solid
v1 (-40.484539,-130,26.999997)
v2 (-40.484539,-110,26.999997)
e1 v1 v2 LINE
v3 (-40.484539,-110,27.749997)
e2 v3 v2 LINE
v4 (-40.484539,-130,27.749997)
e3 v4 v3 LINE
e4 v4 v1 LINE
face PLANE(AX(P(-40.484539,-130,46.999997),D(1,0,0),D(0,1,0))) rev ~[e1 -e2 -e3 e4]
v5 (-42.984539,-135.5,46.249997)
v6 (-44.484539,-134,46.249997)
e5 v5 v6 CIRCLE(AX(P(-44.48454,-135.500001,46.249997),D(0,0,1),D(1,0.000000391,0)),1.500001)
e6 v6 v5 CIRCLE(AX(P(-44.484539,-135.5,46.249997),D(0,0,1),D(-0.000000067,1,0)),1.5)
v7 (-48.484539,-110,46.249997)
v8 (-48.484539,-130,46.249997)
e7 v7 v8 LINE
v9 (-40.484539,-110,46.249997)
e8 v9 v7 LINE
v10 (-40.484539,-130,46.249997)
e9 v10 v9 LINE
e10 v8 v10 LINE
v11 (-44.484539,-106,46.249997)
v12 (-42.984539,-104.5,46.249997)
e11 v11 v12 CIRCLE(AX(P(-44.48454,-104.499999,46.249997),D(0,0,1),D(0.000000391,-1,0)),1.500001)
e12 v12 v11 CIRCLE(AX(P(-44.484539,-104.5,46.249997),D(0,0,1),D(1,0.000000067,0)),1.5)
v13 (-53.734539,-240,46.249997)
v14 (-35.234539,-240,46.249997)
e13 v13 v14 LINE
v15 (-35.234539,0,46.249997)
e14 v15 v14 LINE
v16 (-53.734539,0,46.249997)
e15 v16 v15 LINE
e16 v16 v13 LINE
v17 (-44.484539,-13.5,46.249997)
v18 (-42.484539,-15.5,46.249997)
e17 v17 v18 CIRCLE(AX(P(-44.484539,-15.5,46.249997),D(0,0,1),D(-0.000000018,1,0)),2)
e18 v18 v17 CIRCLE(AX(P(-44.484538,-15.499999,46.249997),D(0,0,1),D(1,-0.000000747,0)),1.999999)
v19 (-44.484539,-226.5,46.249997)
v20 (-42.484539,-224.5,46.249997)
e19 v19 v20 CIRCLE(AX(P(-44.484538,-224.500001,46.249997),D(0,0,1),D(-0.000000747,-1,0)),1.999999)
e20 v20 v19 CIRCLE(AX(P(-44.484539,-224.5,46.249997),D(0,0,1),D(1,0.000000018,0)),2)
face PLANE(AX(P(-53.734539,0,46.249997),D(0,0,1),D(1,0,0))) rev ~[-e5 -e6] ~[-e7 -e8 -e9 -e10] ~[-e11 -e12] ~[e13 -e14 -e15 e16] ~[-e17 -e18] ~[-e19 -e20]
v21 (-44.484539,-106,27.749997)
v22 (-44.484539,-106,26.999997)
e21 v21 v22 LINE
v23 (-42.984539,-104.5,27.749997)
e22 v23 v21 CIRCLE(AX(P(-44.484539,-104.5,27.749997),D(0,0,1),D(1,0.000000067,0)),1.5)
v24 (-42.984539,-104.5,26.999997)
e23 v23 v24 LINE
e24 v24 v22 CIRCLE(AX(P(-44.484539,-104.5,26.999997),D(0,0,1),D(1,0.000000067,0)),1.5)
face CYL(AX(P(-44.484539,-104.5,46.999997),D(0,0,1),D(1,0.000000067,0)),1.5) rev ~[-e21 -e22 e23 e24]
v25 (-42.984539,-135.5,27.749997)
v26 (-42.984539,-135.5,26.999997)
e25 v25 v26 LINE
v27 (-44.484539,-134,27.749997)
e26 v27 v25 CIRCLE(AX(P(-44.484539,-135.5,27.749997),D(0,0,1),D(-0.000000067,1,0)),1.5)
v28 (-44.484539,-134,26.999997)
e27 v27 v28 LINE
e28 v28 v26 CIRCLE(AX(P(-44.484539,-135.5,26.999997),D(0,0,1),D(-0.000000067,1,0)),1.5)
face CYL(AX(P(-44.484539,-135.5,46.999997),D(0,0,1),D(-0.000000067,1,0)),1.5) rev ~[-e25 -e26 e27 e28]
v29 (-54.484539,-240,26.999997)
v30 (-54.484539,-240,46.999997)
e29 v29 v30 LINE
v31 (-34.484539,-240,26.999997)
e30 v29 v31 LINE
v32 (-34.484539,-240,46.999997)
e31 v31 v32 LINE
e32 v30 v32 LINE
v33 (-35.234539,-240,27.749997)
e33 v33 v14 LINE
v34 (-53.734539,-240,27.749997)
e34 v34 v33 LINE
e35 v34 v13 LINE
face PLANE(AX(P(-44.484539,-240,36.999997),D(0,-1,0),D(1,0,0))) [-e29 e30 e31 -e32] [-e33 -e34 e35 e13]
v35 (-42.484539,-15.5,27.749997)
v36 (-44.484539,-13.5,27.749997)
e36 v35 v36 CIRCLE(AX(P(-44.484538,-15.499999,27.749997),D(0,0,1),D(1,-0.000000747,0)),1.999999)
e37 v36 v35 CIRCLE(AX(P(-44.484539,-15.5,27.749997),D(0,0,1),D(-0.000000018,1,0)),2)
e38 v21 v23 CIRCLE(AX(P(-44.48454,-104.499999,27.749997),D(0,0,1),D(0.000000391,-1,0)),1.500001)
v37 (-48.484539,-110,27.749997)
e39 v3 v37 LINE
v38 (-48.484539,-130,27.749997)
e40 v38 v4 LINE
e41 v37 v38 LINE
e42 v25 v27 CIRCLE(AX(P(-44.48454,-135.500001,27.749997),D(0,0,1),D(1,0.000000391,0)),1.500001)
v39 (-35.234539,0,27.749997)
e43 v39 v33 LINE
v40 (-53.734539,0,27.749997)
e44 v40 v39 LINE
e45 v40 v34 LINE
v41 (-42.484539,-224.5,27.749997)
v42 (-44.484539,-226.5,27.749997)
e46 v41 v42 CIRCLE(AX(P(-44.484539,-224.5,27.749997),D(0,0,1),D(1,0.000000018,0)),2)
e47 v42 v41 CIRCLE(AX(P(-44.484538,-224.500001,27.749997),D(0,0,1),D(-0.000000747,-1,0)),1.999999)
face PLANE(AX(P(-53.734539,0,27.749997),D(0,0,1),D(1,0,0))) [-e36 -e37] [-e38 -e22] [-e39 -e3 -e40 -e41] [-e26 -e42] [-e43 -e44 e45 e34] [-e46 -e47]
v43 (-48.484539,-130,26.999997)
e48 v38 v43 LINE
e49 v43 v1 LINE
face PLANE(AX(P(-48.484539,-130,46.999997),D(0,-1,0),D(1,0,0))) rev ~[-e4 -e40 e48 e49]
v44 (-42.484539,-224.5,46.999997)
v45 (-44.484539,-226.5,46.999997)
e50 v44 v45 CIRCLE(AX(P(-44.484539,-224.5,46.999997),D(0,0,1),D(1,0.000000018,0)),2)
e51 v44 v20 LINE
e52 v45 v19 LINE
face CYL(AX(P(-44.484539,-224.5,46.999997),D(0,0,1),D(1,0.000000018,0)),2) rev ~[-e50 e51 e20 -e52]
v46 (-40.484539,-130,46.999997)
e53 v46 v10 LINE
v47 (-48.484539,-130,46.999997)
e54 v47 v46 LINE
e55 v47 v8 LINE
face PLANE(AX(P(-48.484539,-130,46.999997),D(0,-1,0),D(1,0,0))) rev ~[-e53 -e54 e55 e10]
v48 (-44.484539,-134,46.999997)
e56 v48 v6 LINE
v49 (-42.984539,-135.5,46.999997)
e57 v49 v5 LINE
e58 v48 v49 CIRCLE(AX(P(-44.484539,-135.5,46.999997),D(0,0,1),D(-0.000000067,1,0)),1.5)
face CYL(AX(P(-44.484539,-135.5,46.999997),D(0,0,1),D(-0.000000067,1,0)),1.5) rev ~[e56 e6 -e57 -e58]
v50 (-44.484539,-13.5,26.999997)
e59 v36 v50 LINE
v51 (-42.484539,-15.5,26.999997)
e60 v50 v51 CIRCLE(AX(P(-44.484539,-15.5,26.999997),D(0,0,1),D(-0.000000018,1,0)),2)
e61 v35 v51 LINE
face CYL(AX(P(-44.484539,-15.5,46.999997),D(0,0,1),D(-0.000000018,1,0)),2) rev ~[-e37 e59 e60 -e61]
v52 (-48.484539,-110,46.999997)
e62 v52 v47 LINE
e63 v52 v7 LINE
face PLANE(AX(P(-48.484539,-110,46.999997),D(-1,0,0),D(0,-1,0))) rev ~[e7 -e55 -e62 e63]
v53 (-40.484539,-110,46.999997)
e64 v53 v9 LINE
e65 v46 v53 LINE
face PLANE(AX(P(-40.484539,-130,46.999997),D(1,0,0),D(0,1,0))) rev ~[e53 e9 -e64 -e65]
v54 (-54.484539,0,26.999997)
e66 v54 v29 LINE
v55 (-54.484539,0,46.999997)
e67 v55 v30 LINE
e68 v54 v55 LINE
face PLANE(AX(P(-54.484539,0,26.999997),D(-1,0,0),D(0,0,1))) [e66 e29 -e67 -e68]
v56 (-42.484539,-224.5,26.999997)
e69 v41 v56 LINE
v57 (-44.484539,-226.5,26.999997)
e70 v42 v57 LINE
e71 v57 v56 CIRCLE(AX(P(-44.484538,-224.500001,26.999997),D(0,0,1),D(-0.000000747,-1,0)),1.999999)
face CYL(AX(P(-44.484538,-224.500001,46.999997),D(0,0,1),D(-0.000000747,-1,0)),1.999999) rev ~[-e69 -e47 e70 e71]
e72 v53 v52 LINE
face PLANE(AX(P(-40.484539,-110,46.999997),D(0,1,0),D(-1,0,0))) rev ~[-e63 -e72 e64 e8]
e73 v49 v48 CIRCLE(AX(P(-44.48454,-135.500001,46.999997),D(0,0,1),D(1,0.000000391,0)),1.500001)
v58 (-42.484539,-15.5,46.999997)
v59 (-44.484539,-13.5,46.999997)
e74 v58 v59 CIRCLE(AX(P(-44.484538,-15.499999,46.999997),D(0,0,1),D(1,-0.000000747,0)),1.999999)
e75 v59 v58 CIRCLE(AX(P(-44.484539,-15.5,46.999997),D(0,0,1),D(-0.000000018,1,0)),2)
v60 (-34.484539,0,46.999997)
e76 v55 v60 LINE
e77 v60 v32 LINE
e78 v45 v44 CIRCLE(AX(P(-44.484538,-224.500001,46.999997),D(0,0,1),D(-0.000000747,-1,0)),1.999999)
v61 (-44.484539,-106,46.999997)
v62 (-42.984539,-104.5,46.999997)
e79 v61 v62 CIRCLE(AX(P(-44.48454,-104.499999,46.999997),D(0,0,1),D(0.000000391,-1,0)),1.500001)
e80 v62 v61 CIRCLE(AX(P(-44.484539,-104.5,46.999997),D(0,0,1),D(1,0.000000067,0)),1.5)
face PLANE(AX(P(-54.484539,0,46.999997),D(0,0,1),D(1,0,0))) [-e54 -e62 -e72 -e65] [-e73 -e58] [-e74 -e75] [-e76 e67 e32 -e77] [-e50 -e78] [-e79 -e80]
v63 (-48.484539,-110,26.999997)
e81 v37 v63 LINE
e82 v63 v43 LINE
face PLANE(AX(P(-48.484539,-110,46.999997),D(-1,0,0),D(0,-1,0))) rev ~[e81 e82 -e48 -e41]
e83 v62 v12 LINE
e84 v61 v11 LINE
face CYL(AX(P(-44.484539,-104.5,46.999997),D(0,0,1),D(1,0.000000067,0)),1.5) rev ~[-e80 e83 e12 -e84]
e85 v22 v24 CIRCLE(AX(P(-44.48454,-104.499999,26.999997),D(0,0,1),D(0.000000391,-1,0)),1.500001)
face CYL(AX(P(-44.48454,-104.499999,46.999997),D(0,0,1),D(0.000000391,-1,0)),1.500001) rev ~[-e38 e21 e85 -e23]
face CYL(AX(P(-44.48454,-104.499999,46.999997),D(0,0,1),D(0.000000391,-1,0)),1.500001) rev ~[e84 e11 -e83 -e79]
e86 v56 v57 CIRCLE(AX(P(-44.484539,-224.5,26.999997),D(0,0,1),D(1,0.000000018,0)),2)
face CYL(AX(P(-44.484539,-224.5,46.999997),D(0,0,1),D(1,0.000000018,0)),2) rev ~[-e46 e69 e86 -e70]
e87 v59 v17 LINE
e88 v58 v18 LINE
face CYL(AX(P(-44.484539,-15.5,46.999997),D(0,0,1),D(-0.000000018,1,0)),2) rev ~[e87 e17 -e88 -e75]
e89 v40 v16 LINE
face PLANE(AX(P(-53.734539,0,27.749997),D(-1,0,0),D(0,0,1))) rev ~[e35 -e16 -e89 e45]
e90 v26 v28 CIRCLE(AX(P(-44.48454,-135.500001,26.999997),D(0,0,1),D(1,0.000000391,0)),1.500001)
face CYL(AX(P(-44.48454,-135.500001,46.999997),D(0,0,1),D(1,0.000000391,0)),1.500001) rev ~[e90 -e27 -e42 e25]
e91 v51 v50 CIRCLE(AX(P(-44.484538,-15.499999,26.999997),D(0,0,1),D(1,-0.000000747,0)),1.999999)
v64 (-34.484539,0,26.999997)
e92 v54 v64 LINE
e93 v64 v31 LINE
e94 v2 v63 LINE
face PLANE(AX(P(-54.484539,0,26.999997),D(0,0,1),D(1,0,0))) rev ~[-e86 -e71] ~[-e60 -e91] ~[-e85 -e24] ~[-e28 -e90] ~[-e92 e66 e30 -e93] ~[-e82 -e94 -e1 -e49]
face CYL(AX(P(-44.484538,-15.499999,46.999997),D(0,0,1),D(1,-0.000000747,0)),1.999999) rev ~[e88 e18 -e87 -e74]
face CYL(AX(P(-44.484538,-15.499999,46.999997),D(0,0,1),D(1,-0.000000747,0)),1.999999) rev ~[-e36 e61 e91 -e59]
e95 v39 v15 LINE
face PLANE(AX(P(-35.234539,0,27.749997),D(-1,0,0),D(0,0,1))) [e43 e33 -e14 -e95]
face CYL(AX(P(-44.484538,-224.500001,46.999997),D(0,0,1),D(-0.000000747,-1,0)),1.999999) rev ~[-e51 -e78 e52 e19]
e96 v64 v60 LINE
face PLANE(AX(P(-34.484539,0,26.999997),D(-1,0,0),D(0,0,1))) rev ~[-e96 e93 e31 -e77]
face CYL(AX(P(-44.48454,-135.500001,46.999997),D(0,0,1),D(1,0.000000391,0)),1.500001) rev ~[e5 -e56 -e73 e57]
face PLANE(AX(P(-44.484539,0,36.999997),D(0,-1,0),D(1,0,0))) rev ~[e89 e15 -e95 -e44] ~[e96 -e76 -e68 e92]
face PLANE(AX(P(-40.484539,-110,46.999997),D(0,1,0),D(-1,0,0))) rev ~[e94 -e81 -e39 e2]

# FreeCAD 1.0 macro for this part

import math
import FreeCAD as App
import Part
import Sketcher


def add_polygon(sketch, points):
    """Adds a closed chain of lines whose ends are joined by coincident constraints."""
    first, n = sketch.GeometryCount, len(points)
    for a, b in zip(points, points[1:] + points[:1]):
        sketch.addGeometry(Part.LineSegment(App.Vector(*a, 0), App.Vector(*b, 0)), False)
    for i in range(n):
        sketch.addConstraint(Sketcher.Constraint("Coincident", first + i, 2, first + (i + 1) % n, 1))

doc = App.newDocument("Part")
params = doc.addObject("Spreadsheet::Sheet", "Params")
for row, (alias, value) in enumerate([
    ("sketch1_width", "20 mm"),
    ("sketch1_width2", "18.5 mm"),
    ("pad1_length", "240 mm"),
    ("sketch2_radius", "1.5 mm"),
    ("sketch2_width", "8 mm"),
    ("sketch2_height", "20 mm"),
    ("pocket1_length", "25 mm"),
    ("sketch3_radius", "1.999999 mm"),
    ("pocket2_length", "25 mm"),
], start=1):
    params.set(f"A{row}", alias)
    params.set(f"B{row}", "=" + value)
    params.setAlias(f"B{row}", alias)

body = doc.addObject("PartDesign::Body", "Body")

sketch1 = body.newObject("Sketcher::SketchObject", "Sketch")
sketch1.AttachmentSupport = (doc.getObject("XZ_Plane"), [""])
sketch1.MapMode = "FlatFace"
add_polygon(sketch1, [(-54.484539, 46.999997), (-54.484539, 26.999997), (-34.484539, 26.999997), (-34.484539, 46.999997)])
add_polygon(sketch1, [(-35.234539, 27.749997), (-53.734539, 27.749997), (-53.734539, 46.249997), (-35.234539, 46.249997)])
sketch1.addConstraint(Sketcher.Constraint("Vertical", 0))
sketch1.addConstraint(Sketcher.Constraint("Horizontal", 1))
sketch1.addConstraint(Sketcher.Constraint("Vertical", 2))
sketch1.addConstraint(Sketcher.Constraint("Horizontal", 3))
sketch1.addConstraint(Sketcher.Constraint("Horizontal", 4))
sketch1.addConstraint(Sketcher.Constraint("Vertical", 5))
sketch1.addConstraint(Sketcher.Constraint("Horizontal", 6))
sketch1.addConstraint(Sketcher.Constraint("Vertical", 7))
sketch1.addConstraint(Sketcher.Constraint("Equal", 3, 0))
sketch1.addConstraint(Sketcher.Constraint("Equal", 6, 5))
sketch1.addConstraint(Sketcher.Constraint("DistanceX", 1, 1, 1, 2, 20.0))
sketch1.addConstraint(Sketcher.Constraint("DistanceX", 4, 2, 4, 1, 18.5))
sketch1.addConstraint(Sketcher.Constraint("DistanceX", 0, 2, 4, 2, 0.75))
sketch1.addConstraint(Sketcher.Constraint("DistanceY", 0, 2, 4, 2, 0.75))
sketch1.addConstraint(Sketcher.Constraint("DistanceX", 0, 2, -1, 1, 54.484539))
sketch1.addConstraint(Sketcher.Constraint("DistanceY", -1, 1, 0, 2, 26.999997))
sketch1.setExpression("Constraints[18]", "Params.sketch1_width")
sketch1.setExpression("Constraints[19]", "Params.sketch1_width2")
pad1 = body.newObject("PartDesign::Pad", "Pad")
pad1.Profile = sketch1
pad1.setExpression("Length", "Params.pad1_length")

sketch2 = body.newObject("Sketcher::SketchObject", "Sketch001")
sketch2.AttachmentSupport = (doc.getObject("XY_Plane"), [""])
sketch2.MapMode = "FlatFace"
sketch2.AttachmentOffset = App.Placement(App.Vector(0, 0, 46.999997), App.Rotation())
add_polygon(sketch2, [(-40.484539, -110), (-48.484539, -110), (-48.484539, -130), (-40.484539, -130)])
sketch2.addGeometry(Part.ArcOfCircle(Part.Circle(App.Vector(-44.484539, -104.5, 0), App.Vector(0, 0, 1), 1.5), math.radians(0.000004), math.radians(269.999996)), False)
sketch2.addGeometry(Part.ArcOfCircle(Part.Circle(App.Vector(-44.48454, -104.499999, 0), App.Vector(0, 0, 1), 1.500001), math.radians(-89.999978), math.radians(-0.000022)), False)
sketch2.addGeometry(Part.ArcOfCircle(Part.Circle(App.Vector(-44.48454, -135.500001, 0), App.Vector(0, 0, 1), 1.500001), math.radians(0.000022), math.radians(89.999978)), False)
sketch2.addGeometry(Part.ArcOfCircle(Part.Circle(App.Vector(-44.484539, -135.5, 0), App.Vector(0, 0, 1), 1.5), math.radians(90.000004), math.radians(359.999996)), False)
sketch2.addConstraint(Sketcher.Constraint("Tangent", 4, 1, 5, 2))
sketch2.addConstraint(Sketcher.Constraint("Coincident", 5, 1, 4, 2))
sketch2.addConstraint(Sketcher.Constraint("Tangent", 6, 1, 7, 2))
sketch2.addConstraint(Sketcher.Constraint("Coincident", 7, 1, 6, 2))
sketch2.addConstraint(Sketcher.Constraint("Horizontal", 0))
sketch2.addConstraint(Sketcher.Constraint("Vertical", 1))
sketch2.addConstraint(Sketcher.Constraint("Horizontal", 2))
sketch2.addConstraint(Sketcher.Constraint("Vertical", 3))
sketch2.addConstraint(Sketcher.Constraint("Equal", 5, 6))
sketch2.addConstraint(Sketcher.Constraint("Horizontal", 5, 3, 4, 1))
sketch2.addConstraint(Sketcher.Constraint("Horizontal", 7, 3, 6, 1))
sketch2.addConstraint(Sketcher.Constraint("Vertical", 5, 3, 6, 3))
sketch2.addConstraint(Sketcher.Constraint("Vertical", 7, 3, 5, 1))
sketch2.addConstraint(Sketcher.Constraint("Vertical", 5, 1, 7, 1))
sketch2.addConstraint(Sketcher.Constraint("Radius", 4, 1.5))
sketch2.addConstraint(Sketcher.Constraint("DistanceX", 0, 2, 0, 1, 8.0))
sketch2.addConstraint(Sketcher.Constraint("DistanceY", 1, 2, 1, 1, 20.0))
sketch2.addConstraint(Sketcher.Constraint("DistanceY", 0, 2, -1, 1, 110.0))
sketch2.addConstraint(Sketcher.Constraint("DistanceY", 5, 1, -1, 1, 106.0))
sketch2.addConstraint(Sketcher.Constraint("DistanceY", 7, 1, -1, 1, 134.0))
sketch2.addConstraint(Sketcher.Constraint("DistanceX", 0, 2, 4, 3, 4.0))
sketch2.addConstraint(Sketcher.Constraint("DistanceX", 4, 3, -1, 1, 44.484539))
sketch2.setExpression("Constraints[18]", "Params.sketch2_radius")
sketch2.setExpression("Constraints[19]", "Params.sketch2_width")
sketch2.setExpression("Constraints[20]", "Params.sketch2_height")
pocket1 = body.newObject("PartDesign::Pocket", "Pocket")
pocket1.Profile = sketch2
pocket1.setExpression("Length", "Params.pocket1_length")

sketch3 = body.newObject("Sketcher::SketchObject", "Sketch002")
sketch3.AttachmentSupport = (doc.getObject("XY_Plane"), [""])
sketch3.MapMode = "FlatFace"
sketch3.AttachmentOffset = App.Placement(App.Vector(0, 0, 46.999997), App.Rotation())
sketch3.addGeometry(Part.ArcOfCircle(Part.Circle(App.Vector(-44.484538, -224.500001, 0), App.Vector(0, 0, 1), 1.999999), math.radians(-90.000043), math.radians(0.000043)), False)
sketch3.addGeometry(Part.ArcOfCircle(Part.Circle(App.Vector(-44.484539, -224.5, 0), App.Vector(0, 0, 1), 2), math.radians(0.000001), math.radians(269.999999)), False)
sketch3.addGeometry(Part.ArcOfCircle(Part.Circle(App.Vector(-44.484539, -15.5, 0), App.Vector(0, 0, 1), 2), math.radians(90.000001), math.radians(359.999999)), False)
sketch3.addGeometry(Part.ArcOfCircle(Part.Circle(App.Vector(-44.484538, -15.499999, 0), App.Vector(0, 0, 1), 1.999999), math.radians(-0.000043), math.radians(90.000043)), False)
sketch3.addConstraint(Sketcher.Constraint("Tangent", 0, 1, 1, 2))
sketch3.addConstraint(Sketcher.Constraint("Coincident", 1, 1, 0, 2))
sketch3.addConstraint(Sketcher.Constraint("Tangent", 2, 1, 3, 2))
sketch3.addConstraint(Sketcher.Constraint("Coincident", 3, 1, 2, 2))
sketch3.addConstraint(Sketcher.Constraint("Equal", 1, 2))
sketch3.addConstraint(Sketcher.Constraint("Horizontal", 0, 3, 1, 1))
sketch3.addConstraint(Sketcher.Constraint("Horizontal", 2, 3, 3, 1))
sketch3.addConstraint(Sketcher.Constraint("Vertical", 1, 3, 2, 3))
sketch3.addConstraint(Sketcher.Constraint("Vertical", 3, 3, 0, 1))
sketch3.addConstraint(Sketcher.Constraint("Vertical", 0, 1, 2, 1))
sketch3.addConstraint(Sketcher.Constraint("Radius", 0, 1.999999))
sketch3.addConstraint(Sketcher.Constraint("DistanceY", 1, 3, 2, 3, 209.0))
sketch3.addConstraint(Sketcher.Constraint("DistanceY", 0, 3, -1, 1, 224.500001))
sketch3.addConstraint(Sketcher.Constraint("DistanceX", 1, 3, -1, 1, 44.484539))
sketch3.setExpression("Constraints[10]", "Params.sketch3_radius")
pocket2 = body.newObject("PartDesign::Pocket", "Pocket001")
pocket2.Profile = sketch3
pocket2.setExpression("Length", "Params.pocket2_length")

doc.recompute()
